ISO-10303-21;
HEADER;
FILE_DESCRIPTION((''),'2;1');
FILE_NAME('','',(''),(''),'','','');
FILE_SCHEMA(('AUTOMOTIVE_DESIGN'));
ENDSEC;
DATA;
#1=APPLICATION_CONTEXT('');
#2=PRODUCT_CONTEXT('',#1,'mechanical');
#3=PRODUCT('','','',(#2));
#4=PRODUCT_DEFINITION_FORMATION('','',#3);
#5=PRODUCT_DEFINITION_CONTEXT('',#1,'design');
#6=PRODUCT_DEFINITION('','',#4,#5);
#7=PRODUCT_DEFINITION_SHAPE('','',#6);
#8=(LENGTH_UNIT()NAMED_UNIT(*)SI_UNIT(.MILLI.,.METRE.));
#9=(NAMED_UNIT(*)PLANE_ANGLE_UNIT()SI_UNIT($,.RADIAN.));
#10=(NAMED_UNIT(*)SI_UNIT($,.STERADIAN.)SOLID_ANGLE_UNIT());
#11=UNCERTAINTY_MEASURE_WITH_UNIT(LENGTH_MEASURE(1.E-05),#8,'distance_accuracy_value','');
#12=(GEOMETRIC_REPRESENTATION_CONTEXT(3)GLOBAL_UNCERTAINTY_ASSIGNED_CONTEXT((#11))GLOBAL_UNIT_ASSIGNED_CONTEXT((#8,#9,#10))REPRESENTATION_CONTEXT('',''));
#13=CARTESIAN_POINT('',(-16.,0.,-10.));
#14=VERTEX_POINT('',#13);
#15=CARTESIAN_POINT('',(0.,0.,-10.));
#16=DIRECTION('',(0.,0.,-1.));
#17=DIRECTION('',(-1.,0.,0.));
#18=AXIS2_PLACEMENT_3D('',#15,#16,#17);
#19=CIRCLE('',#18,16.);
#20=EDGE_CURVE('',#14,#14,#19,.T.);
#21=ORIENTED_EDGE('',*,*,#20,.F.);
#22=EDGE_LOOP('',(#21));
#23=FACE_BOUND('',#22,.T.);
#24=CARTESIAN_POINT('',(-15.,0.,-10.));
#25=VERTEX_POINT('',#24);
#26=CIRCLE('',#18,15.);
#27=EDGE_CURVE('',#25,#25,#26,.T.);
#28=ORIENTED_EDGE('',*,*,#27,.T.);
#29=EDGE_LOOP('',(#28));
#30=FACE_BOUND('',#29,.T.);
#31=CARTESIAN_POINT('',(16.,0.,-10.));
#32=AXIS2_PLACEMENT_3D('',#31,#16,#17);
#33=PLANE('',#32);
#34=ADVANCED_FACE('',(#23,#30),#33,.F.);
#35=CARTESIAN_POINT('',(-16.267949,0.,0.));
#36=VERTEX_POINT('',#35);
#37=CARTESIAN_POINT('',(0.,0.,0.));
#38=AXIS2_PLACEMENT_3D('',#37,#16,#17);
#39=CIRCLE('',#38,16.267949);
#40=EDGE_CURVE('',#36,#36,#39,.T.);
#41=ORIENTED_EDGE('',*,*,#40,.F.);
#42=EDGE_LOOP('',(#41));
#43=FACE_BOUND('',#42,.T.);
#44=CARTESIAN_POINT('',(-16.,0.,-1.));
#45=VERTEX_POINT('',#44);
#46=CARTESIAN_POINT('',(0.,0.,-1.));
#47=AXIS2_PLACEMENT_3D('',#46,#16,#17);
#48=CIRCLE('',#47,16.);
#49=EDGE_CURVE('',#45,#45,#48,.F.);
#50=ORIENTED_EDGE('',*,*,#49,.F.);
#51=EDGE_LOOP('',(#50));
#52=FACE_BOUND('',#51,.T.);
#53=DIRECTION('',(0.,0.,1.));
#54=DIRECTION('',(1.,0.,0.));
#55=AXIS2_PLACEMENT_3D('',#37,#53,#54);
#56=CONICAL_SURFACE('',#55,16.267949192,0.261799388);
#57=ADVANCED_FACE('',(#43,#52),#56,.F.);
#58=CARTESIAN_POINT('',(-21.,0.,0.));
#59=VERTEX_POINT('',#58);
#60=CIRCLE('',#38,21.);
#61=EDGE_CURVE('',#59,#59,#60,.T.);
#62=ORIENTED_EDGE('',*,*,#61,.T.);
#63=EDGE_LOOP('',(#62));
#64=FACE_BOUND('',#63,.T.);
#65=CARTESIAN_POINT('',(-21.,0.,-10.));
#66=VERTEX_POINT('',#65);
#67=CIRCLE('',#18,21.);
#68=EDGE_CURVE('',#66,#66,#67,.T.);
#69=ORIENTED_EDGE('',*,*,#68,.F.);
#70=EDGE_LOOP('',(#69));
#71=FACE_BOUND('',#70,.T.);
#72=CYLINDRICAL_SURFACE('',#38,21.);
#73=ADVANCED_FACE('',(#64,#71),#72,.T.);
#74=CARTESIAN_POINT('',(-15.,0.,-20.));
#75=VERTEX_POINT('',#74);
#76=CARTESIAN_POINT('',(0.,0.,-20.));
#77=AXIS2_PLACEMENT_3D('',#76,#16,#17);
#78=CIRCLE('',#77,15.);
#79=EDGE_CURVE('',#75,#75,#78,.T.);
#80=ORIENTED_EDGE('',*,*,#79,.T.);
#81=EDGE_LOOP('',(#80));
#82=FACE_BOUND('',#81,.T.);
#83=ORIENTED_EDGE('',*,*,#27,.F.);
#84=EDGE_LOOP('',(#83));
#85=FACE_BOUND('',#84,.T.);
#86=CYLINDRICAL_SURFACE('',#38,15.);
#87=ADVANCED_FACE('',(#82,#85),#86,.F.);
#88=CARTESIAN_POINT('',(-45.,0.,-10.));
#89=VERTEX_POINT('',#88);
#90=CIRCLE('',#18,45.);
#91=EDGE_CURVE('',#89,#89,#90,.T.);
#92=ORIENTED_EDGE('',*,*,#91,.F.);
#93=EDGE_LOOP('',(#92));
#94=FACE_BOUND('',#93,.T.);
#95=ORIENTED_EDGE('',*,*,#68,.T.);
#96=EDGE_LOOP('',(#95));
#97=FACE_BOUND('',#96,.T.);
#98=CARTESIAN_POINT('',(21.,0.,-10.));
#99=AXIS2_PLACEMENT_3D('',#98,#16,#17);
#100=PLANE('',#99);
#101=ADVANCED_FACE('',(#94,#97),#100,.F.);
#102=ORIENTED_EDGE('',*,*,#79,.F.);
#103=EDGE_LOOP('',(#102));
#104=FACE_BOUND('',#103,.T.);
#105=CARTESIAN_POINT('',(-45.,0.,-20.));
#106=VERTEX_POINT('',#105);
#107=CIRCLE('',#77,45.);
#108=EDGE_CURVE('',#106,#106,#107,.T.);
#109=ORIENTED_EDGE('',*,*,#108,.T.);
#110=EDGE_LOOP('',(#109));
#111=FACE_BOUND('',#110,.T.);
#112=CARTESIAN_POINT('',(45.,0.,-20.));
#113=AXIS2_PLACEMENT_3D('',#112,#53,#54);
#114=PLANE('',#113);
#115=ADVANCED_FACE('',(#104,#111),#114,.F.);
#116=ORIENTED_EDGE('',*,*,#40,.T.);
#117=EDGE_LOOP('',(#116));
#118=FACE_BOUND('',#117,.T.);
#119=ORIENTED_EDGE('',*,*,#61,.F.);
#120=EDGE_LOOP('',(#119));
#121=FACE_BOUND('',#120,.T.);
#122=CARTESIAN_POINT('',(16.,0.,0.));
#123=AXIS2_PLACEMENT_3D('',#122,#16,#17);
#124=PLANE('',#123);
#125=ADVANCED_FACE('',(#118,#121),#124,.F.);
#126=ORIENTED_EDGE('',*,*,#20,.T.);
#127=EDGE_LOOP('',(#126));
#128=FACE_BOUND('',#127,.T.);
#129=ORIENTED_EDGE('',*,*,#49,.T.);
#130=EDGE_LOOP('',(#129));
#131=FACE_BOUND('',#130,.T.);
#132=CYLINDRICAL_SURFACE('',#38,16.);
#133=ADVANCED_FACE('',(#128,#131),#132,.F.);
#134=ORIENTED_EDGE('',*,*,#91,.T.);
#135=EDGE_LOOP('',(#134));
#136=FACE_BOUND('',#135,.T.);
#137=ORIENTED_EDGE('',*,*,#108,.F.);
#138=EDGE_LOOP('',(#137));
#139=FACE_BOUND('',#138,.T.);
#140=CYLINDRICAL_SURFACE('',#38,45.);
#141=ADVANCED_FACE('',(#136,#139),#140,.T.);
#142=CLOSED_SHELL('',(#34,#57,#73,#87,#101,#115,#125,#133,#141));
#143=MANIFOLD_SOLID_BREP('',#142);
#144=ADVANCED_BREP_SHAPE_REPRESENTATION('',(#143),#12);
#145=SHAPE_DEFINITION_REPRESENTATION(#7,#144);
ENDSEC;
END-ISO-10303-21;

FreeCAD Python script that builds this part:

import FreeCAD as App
import Part
import Sketcher
from FreeCAD import Vector
Q = App.Units.Quantity


def edges_at(feature, points):
    """Names of the edges that pass closest to the given points."""
    edges = feature.Shape.Edges
    near = lambda p: min(range(len(edges)), key=lambda i: edges[i].distToShape(Part.Vertex(*p))[0])
    return sorted({f"Edge{near(p) + 1}" for p in points})

doc = App.newDocument("Part")
body = doc.addObject("PartDesign::Body", "Body")

# Sketch on XZ plane
sketch1 = body.newObject("Sketcher::SketchObject", "Sketch")
sketch1.AttachmentSupport = (doc.getObject("XZ_Plane"), [""])
sketch1.MapMode = "FlatFace"
sketch1.addGeometry([
    Part.LineSegment(Vector(16, -10, 0), Vector(16, 0, 0)),  # 0
    Part.LineSegment(Vector(16, 0, 0), Vector(21, 0, 0)),  # 1
    Part.LineSegment(Vector(21, 0, 0), Vector(21, -10, 0)),  # 2
    Part.LineSegment(Vector(21, -10, 0), Vector(45, -10, 0)),  # 3
    Part.LineSegment(Vector(45, -10, 0), Vector(45, -20, 0)),  # 4
    Part.LineSegment(Vector(45, -20, 0), Vector(15, -20, 0)),  # 5
    Part.LineSegment(Vector(15, -20, 0), Vector(15, -10, 0)),  # 6
    Part.LineSegment(Vector(15, -10, 0), Vector(16, -10, 0)),  # 7
], False)
sketch1.addConstraint([
    Sketcher.Constraint("Coincident", 0, 2, 1, 1),
    Sketcher.Constraint("Coincident", 1, 2, 2, 1),
    Sketcher.Constraint("Coincident", 2, 2, 3, 1),
    Sketcher.Constraint("Coincident", 3, 2, 4, 1),
    Sketcher.Constraint("Coincident", 4, 2, 5, 1),
    Sketcher.Constraint("Coincident", 5, 2, 6, 1),
    Sketcher.Constraint("Coincident", 6, 2, 7, 1),
    Sketcher.Constraint("Coincident", 7, 2, 0, 1),
    Sketcher.Constraint("Vertical", 0),
    Sketcher.Constraint("Horizontal", 1),
    Sketcher.Constraint("Vertical", 2),
    Sketcher.Constraint("Horizontal", 3),
    Sketcher.Constraint("Vertical", 4),
    Sketcher.Constraint("Horizontal", 5),
    Sketcher.Constraint("Vertical", 6),
    Sketcher.Constraint("Horizontal", 7),
    Sketcher.Constraint("PointOnObject", 0, 2, -1),
    Sketcher.Constraint("Horizontal", 3, 2, 6, 2),
    Sketcher.Constraint("Equal", 2, 4),
    Sketcher.Constraint("DistanceX", 1, 1, 1, 2, Q("5 mm")),
    Sketcher.Constraint("DistanceX", 3, 1, 3, 2, Q("24 mm")),
    Sketcher.Constraint("DistanceX", 5, 2, 5, 1, Q("30 mm")),
    Sketcher.Constraint("DistanceY", 0, 1, 0, 2, Q("10 mm")),
    Sketcher.Constraint("DistanceX", -1, 1, 0, 2, Q("16 mm")),
])
revolution = body.newObject("PartDesign::Revolution", "Revolution")
revolution.Profile = sketch1
revolution.ReferenceAxis = (sketch1, ["V_Axis"])
revolution.Angle = 360
doc.recompute()

chamfer = body.newObject("PartDesign::Chamfer", "Chamfer")
chamfer.Base = (revolution, edges_at(revolution, [(-16, 0, 0)]))
chamfer.ChamferType = "Two distances"
chamfer.Size = 1
chamfer.Size2 = 0.267949

doc.recompute()
